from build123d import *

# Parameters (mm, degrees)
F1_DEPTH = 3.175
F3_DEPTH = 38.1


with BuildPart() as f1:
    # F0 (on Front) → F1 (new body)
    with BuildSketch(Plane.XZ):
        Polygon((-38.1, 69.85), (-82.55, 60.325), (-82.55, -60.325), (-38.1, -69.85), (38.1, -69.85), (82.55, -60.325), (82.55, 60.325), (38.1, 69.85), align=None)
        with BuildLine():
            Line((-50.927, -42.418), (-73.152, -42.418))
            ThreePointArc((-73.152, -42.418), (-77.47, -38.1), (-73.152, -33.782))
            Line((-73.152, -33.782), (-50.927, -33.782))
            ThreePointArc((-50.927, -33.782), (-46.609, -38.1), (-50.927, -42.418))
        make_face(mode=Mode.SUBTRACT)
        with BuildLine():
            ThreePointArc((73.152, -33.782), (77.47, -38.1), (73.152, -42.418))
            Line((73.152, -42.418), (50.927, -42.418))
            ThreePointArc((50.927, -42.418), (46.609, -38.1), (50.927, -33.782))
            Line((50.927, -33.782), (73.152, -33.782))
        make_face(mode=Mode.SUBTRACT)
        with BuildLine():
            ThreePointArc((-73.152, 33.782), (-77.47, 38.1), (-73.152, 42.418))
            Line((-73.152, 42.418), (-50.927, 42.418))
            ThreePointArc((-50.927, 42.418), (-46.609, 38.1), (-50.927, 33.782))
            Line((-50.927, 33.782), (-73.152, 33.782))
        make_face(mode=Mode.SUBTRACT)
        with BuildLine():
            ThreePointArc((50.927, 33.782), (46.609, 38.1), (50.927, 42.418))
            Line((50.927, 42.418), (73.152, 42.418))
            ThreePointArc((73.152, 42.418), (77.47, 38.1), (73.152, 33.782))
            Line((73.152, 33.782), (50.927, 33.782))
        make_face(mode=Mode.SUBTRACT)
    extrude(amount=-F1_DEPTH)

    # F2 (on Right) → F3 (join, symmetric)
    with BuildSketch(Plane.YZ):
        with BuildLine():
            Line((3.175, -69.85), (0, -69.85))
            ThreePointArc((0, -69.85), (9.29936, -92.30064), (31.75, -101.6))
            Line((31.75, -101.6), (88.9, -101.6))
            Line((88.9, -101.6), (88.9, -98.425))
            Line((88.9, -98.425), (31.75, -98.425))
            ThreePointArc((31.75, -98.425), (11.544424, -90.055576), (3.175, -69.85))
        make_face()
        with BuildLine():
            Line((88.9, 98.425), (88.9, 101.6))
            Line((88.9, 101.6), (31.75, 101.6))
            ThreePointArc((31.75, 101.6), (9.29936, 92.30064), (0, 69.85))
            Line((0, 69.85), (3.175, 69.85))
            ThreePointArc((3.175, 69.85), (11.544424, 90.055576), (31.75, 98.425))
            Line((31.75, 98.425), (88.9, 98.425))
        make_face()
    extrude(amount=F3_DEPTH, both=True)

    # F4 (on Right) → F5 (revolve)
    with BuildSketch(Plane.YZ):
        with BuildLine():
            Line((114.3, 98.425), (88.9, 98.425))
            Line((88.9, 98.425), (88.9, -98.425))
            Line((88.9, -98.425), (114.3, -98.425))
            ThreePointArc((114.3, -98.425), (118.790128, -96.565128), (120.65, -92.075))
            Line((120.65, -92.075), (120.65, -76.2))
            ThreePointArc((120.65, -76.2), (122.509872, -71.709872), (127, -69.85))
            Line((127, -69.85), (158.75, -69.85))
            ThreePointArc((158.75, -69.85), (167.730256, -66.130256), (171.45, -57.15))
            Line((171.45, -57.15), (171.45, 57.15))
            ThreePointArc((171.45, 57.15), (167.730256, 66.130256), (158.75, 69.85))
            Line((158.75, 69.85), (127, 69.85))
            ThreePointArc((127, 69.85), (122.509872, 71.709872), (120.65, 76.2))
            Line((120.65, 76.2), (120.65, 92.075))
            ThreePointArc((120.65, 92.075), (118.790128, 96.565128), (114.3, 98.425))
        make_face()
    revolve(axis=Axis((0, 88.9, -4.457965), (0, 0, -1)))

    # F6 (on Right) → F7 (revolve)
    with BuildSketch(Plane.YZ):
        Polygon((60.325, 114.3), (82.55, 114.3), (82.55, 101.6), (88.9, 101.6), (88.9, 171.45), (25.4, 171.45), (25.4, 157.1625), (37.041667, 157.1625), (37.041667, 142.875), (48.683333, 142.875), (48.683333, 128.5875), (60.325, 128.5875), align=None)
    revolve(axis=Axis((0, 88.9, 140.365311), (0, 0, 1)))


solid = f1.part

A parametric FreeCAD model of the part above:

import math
import FreeCAD as App
import Part
import Sketcher
Q = App.Units.Quantity


def add_polygon(sketch, points):
    """Adds a closed chain of lines whose ends are joined by coincident constraints."""
    first, n = sketch.GeometryCount, len(points)
    for a, b in zip(points, points[1:] + points[:1]):
        sketch.addGeometry(Part.LineSegment(App.Vector(*a, 0), App.Vector(*b, 0)), False)
    for i in range(n):
        sketch.addConstraint(Sketcher.Constraint("Coincident", first + i, 2, first + (i + 1) % n, 1))

doc = App.newDocument("Part")
body = doc.addObject("PartDesign::Body", "Body")

sketch1 = body.newObject("Sketcher::SketchObject", "Sketch")
sketch1.AttachmentSupport = (doc.getObject("XZ_Plane"), [""])
sketch1.MapMode = "FlatFace"
add_polygon(sketch1, [(-38.1, 69.8), (-82.5, 60.3), (-82.5, -60.3), (-38.1, -69.8), (38.1, -69.8), (82.5, -60.3), (82.5, 60.3), (38.1, 69.8)])
sketch1.addGeometry(Part.ArcOfCircle(Part.Circle(App.Vector(-50.9, -38.1, 0), App.Vector(0, 0, 1), 4.3), math.radians(-90), math.radians(90)), False)
sketch1.addGeometry(Part.LineSegment(App.Vector(-50.9, -42.4, 0), App.Vector(-73.2, -42.4, 0)), False)
sketch1.addGeometry(Part.ArcOfCircle(Part.Circle(App.Vector(-73.2, -38.1, 0), App.Vector(0, 0, 1), 4.3), math.radians(90), math.radians(270)), False)
sketch1.addGeometry(Part.LineSegment(App.Vector(-73.2, -33.8, 0), App.Vector(-50.9, -33.8, 0)), False)
sketch1.addGeometry(Part.LineSegment(App.Vector(50.9, -33.8, 0), App.Vector(73.2, -33.8, 0)), False)
sketch1.addGeometry(Part.ArcOfCircle(Part.Circle(App.Vector(73.2, -38.1, 0), App.Vector(0, 0, 1), 4.3), math.radians(-90), math.radians(90)), False)
sketch1.addGeometry(Part.LineSegment(App.Vector(73.2, -42.4, 0), App.Vector(50.9, -42.4, 0)), False)
sketch1.addGeometry(Part.ArcOfCircle(Part.Circle(App.Vector(50.9, -38.1, 0), App.Vector(0, 0, 1), 4.3), math.radians(90), math.radians(270)), False)
sketch1.addGeometry(Part.LineSegment(App.Vector(-50.9, 33.8, 0), App.Vector(-73.2, 33.8, 0)), False)
sketch1.addGeometry(Part.ArcOfCircle(Part.Circle(App.Vector(-73.2, 38.1, 0), App.Vector(0, 0, 1), 4.3), math.radians(90), math.radians(270)), False)
sketch1.addGeometry(Part.LineSegment(App.Vector(-73.2, 42.4, 0), App.Vector(-50.9, 42.4, 0)), False)
sketch1.addGeometry(Part.ArcOfCircle(Part.Circle(App.Vector(-50.9, 38.1, 0), App.Vector(0, 0, 1), 4.3), math.radians(-90), math.radians(90)), False)
sketch1.addGeometry(Part.LineSegment(App.Vector(73.2, 33.8, 0), App.Vector(50.9, 33.8, 0)), False)
sketch1.addGeometry(Part.ArcOfCircle(Part.Circle(App.Vector(50.9, 38.1, 0), App.Vector(0, 0, 1), 4.3), math.radians(90), math.radians(270)), False)
sketch1.addGeometry(Part.LineSegment(App.Vector(50.9, 42.4, 0), App.Vector(73.2, 42.4, 0)), False)
sketch1.addGeometry(Part.ArcOfCircle(Part.Circle(App.Vector(73.2, 38.1, 0), App.Vector(0, 0, 1), 4.3), math.radians(-90), math.radians(90)), False)
sketch1.addConstraint([
    Sketcher.Constraint("Tangent", 8, 1, 9, 1),
    Sketcher.Constraint("Tangent", 9, 2, 10, 2),
    Sketcher.Constraint("Tangent", 10, 1, 11, 1),
    Sketcher.Constraint("Tangent", 11, 2, 8, 2),
    Sketcher.Constraint("Tangent", 12, 2, 13, 2),
    Sketcher.Constraint("Tangent", 13, 1, 14, 1),
    Sketcher.Constraint("Tangent", 14, 2, 15, 2),
    Sketcher.Constraint("Tangent", 15, 1, 12, 1),
    Sketcher.Constraint("Tangent", 16, 2, 17, 2),
    Sketcher.Constraint("Tangent", 17, 1, 18, 1),
    Sketcher.Constraint("Tangent", 18, 2, 19, 2),
    Sketcher.Constraint("Tangent", 19, 1, 16, 1),
    Sketcher.Constraint("Tangent", 20, 2, 21, 2),
    Sketcher.Constraint("Tangent", 21, 1, 22, 1),
    Sketcher.Constraint("Tangent", 22, 2, 23, 2),
    Sketcher.Constraint("Tangent", 23, 1, 20, 1),
    Sketcher.Constraint("Vertical", 1),
    Sketcher.Constraint("Horizontal", 3),
    Sketcher.Constraint("Vertical", 5),
    Sketcher.Constraint("Horizontal", 7),
    Sketcher.Constraint("Horizontal", 9),
    Sketcher.Constraint("Horizontal", 11),
    Sketcher.Constraint("Horizontal", 12),
    Sketcher.Constraint("Horizontal", 14),
    Sketcher.Constraint("Horizontal", 16),
    Sketcher.Constraint("Horizontal", 18),
    Sketcher.Constraint("Horizontal", 20),
    Sketcher.Constraint("Horizontal", 22),
    Sketcher.Constraint("Equal", 10, 13),
    Sketcher.Constraint("Equal", 15, 17),
    Sketcher.Constraint("Equal", 19, 21),
    Sketcher.Constraint("Symmetric", 13, 3, 17, 3, -1, 1),
    Sketcher.Constraint("Symmetric", 8, 3, 21, 3, -1, 1),
    Sketcher.Constraint("Symmetric", 0, 2, 4, 2, -1, 1),
    Sketcher.Constraint("Symmetric", 2, 2, 6, 2, -1, 1),
    Sketcher.Constraint("Symmetric", 10, 3, 13, 3, -2),
    Sketcher.Constraint("Parallel", 0, 4),
    Sketcher.Constraint("Parallel", 2, 6),
    Sketcher.Constraint("Horizontal", 1, 2, 4, 2),
    Sketcher.Constraint("Vertical", 8, 3, 19, 3),
    Sketcher.Constraint("Vertical", 15, 3, 21, 3),
    Sketcher.Constraint("Vertical", 13, 3, 23, 3),
    Sketcher.Constraint("Vertical", 3, 2, 6, 2),
    Sketcher.Constraint("DistanceX", 3, 1, 3, 2, Q("3 in")),
    Sketcher.Constraint("Radius", 8, Q("0.17 in")),
    Sketcher.Constraint("DistanceY", 10, 3, 17, 3, Q("3 in")),
    Sketcher.Constraint("DistanceY", 1, 2, 1, 1, Q("4.75 in")),
    Sketcher.Constraint("DistanceX", 9, 2, 9, 1, Q("0.875 in")),
    Sketcher.Constraint("DistanceX", 10, 3, -1, 1, Q("2.88 in")),
    Sketcher.Constraint("DistanceX", 0, 2, -1, 1, Q("3.25 in")),
    Sketcher.Constraint("DistanceY", 2, 2, -1, 1, Q("2.75 in")),
])
pad1 = body.newObject("PartDesign::Pad", "Pad")
pad1.Profile = sketch1
pad1.Length = Q("0.125 in")
pad1.Reversed = True

sketch2 = body.newObject("Sketcher::SketchObject", "Sketch001")
sketch2.AttachmentSupport = (doc.getObject("YZ_Plane"), [""])
sketch2.MapMode = "FlatFace"
sketch2.addGeometry([
    Part.LineSegment(App.Vector(3.2, -69.8, 0), App.Vector(0, -69.8, 0)),
    Part.ArcOfCircle(Part.Circle(App.Vector(31.8, -69.8, 0), App.Vector(0, 0, 1), 31.8), math.radians(-180), math.radians(-90)),
    Part.LineSegment(App.Vector(31.8, -101.6, 0), App.Vector(88.9, -101.6, 0)),
    Part.LineSegment(App.Vector(88.9, -101.6, 0), App.Vector(88.9, -98.4, 0)),
    Part.LineSegment(App.Vector(88.9, -98.4, 0), App.Vector(31.8, -98.4, 0)),
    Part.ArcOfCircle(Part.Circle(App.Vector(31.8, -69.8, 0), App.Vector(0, 0, 1), 28.6), math.radians(-180), math.radians(-90)),
    Part.LineSegment(App.Vector(88.9, 98.4, 0), App.Vector(88.9, 101.6, 0)),
    Part.LineSegment(App.Vector(88.9, 101.6, 0), App.Vector(31.8, 101.6, 0)),
    Part.ArcOfCircle(Part.Circle(App.Vector(31.8, 69.8, 0), App.Vector(0, 0, 1), 31.8), math.radians(90), math.radians(180)),
    Part.LineSegment(App.Vector(0, 69.8, 0), App.Vector(3.2, 69.8, 0)),
    Part.ArcOfCircle(Part.Circle(App.Vector(31.8, 69.8, 0), App.Vector(0, 0, 1), 28.6), math.radians(90), math.radians(180)),
    Part.LineSegment(App.Vector(31.8, 98.4, 0), App.Vector(88.9, 98.4, 0)),
], False)
sketch2.addConstraint([
    Sketcher.Constraint("Coincident", 0, 2, 1, 1),
    Sketcher.Constraint("Tangent", 1, 2, 2, 1),
    Sketcher.Constraint("Coincident", 2, 2, 3, 1),
    Sketcher.Constraint("Coincident", 3, 2, 4, 1),
    Sketcher.Constraint("Tangent", 4, 2, 5, 2),
    Sketcher.Constraint("Coincident", 5, 1, 0, 1),
    Sketcher.Constraint("Coincident", 6, 2, 7, 1),
    Sketcher.Constraint("Tangent", 7, 2, 8, 1),
    Sketcher.Constraint("Coincident", 8, 2, 9, 1),
    Sketcher.Constraint("Coincident", 9, 2, 10, 2),
    Sketcher.Constraint("Tangent", 10, 1, 11, 1),
    Sketcher.Constraint("Coincident", 11, 2, 6, 1),
    Sketcher.Constraint("Horizontal", 0),
    Sketcher.Constraint("Horizontal", 2),
    Sketcher.Constraint("Vertical", 3),
    Sketcher.Constraint("Horizontal", 4),
    Sketcher.Constraint("Vertical", 6),
    Sketcher.Constraint("Horizontal", 7),
    Sketcher.Constraint("Horizontal", 9),
    Sketcher.Constraint("Horizontal", 11),
    Sketcher.Constraint("Coincident", 5, 3, 1, 3),
    Sketcher.Constraint("Coincident", 10, 3, 8, 3),
    Sketcher.Constraint("Equal", 1, 8),
    Sketcher.Constraint("Equal", 5, 10),
    Sketcher.Constraint("Symmetric", 0, 2, 8, 2, -1, 1),
    Sketcher.Constraint("Symmetric", 1, 3, 8, 3, -1),
    Sketcher.Constraint("Horizontal", 5, 3, 0, 2),
    Sketcher.Constraint("Vertical", 3, 2, 6, 2),
    Sketcher.Constraint("Radius", 1, Q("1.25 in")),
    Sketcher.Constraint("DistanceY", 1, 2, -1, 1, Q("4 in")),
    Sketcher.Constraint("Radius", 5, Q("1.125 in")),
    Sketcher.Constraint("DistanceX", 2, 1, 2, 2, Q("2.25 in")),
])
pad2 = body.newObject("PartDesign::Pad", "Pad001")
pad2.Profile = sketch2
pad2.Length = Q("3 in")
pad2.Midplane = True

sketch3 = body.newObject("Sketcher::SketchObject", "Sketch002")
sketch3.AttachmentSupport = (doc.getObject("YZ_Plane"), [""])
sketch3.MapMode = "FlatFace"
sketch3.addGeometry([
    Part.LineSegment(App.Vector(114, 98, 0), App.Vector(89, 98, 0)),
    Part.LineSegment(App.Vector(89, 98, 0), App.Vector(89, -98, 0)),
    Part.LineSegment(App.Vector(89, -98, 0), App.Vector(114, -98, 0)),
    Part.ArcOfCircle(Part.Circle(App.Vector(114, -92, 0), App.Vector(0, 0, 1), 6), math.radians(-90), math.radians(0)),
    Part.LineSegment(App.Vector(121, -92, 0), App.Vector(121, -76, 0)),
    Part.ArcOfCircle(Part.Circle(App.Vector(127, -76, 0), App.Vector(0, 0, 1), 6), math.radians(90), math.radians(180)),
    Part.LineSegment(App.Vector(127, -70, 0), App.Vector(159, -70, 0)),
    Part.ArcOfCircle(Part.Circle(App.Vector(159, -57, 0), App.Vector(0, 0, 1), 13), math.radians(-90), math.radians(0)),
    Part.LineSegment(App.Vector(171, -57, 0), App.Vector(171, 57, 0)),
    Part.ArcOfCircle(Part.Circle(App.Vector(159, 57, 0), App.Vector(0, 0, 1), 13), math.radians(0), math.radians(90)),
    Part.LineSegment(App.Vector(159, 70, 0), App.Vector(127, 70, 0)),
    Part.ArcOfCircle(Part.Circle(App.Vector(127, 76, 0), App.Vector(0, 0, 1), 6), math.radians(-180), math.radians(-90)),
    Part.LineSegment(App.Vector(121, 76, 0), App.Vector(121, 92, 0)),
    Part.ArcOfCircle(Part.Circle(App.Vector(114, 92, 0), App.Vector(0, 0, 1), 6), math.radians(0), math.radians(90)),
], False)
sketch3.addGeometry(Part.LineSegment(App.Vector(89, 98, 0), App.Vector(89, -98, 0)), True)
sketch3.addConstraint([
    Sketcher.Constraint("Coincident", 0, 2, 1, 1),
    Sketcher.Constraint("Coincident", 1, 2, 2, 1),
    Sketcher.Constraint("Tangent", 2, 2, 3, 1),
    Sketcher.Constraint("Tangent", 3, 2, 4, 1),
    Sketcher.Constraint("Tangent", 4, 2, 5, 2),
    Sketcher.Constraint("Tangent", 5, 1, 6, 1),
    Sketcher.Constraint("Tangent", 6, 2, 7, 1),
    Sketcher.Constraint("Tangent", 7, 2, 8, 1),
    Sketcher.Constraint("Tangent", 8, 2, 9, 1),
    Sketcher.Constraint("Tangent", 9, 2, 10, 1),
    Sketcher.Constraint("Tangent", 10, 2, 11, 2),
    Sketcher.Constraint("Tangent", 11, 1, 12, 1),
    Sketcher.Constraint("Tangent", 12, 2, 13, 1),
    Sketcher.Constraint("Tangent", 13, 2, 0, 1),
    Sketcher.Constraint("Horizontal", 0),
    Sketcher.Constraint("Vertical", 1),
    Sketcher.Constraint("Horizontal", 2),
    Sketcher.Constraint("Vertical", 4),
    Sketcher.Constraint("Horizontal", 6),
    Sketcher.Constraint("Vertical", 8),
    Sketcher.Constraint("Horizontal", 10),
    Sketcher.Constraint("Vertical", 12),
    Sketcher.Constraint("Vertical", 14),
    Sketcher.Constraint("Coincident", 14, 1, 0, 2),
    Sketcher.Constraint("Equal", 3, 5),
    Sketcher.Constraint("Equal", 7, 9),
    Sketcher.Constraint("Equal", 5, 11),
    Sketcher.Constraint("Equal", 11, 13),
    Sketcher.Constraint("Symmetric", 5, 3, 11, 3, -1),
    Sketcher.Constraint("Horizontal", 2, 2, 14, 2),
    Sketcher.Constraint("Equal", 4, 12),
    Sketcher.Constraint("Radius", 7, Q("0.5 in")),
    Sketcher.Constraint("DistanceX", 0, 2, 0, 1, Q("1 in")),
    Sketcher.Constraint("Radius", 3, Q("0.25 in")),
    Sketcher.Constraint("DistanceY", 8, 1, 8, 2, Q("4.5 in")),
    Sketcher.Constraint("DistanceX", -1, 1, 5, 3, Q("5 in")),
    Sketcher.Constraint("DistanceX", 4, 2, 7, 2, Q("2 in")),
    Sketcher.Constraint("DistanceY", 1, 2, 1, 1, Q("7.75 in")),
])
revolution = body.newObject("PartDesign::Revolution", "Revolution")
revolution.Profile = sketch3
revolution.ReferenceAxis = (sketch3, ["Axis0"])
revolution.Angle = 360

sketch4 = body.newObject("Sketcher::SketchObject", "Sketch003")
sketch4.AttachmentSupport = (doc.getObject("YZ_Plane"), [""])
sketch4.MapMode = "FlatFace"
add_polygon(sketch4, [(60, 114), (83, 114), (83, 102), (89, 102), (89, 171), (25, 171), (25, 157), (37, 157), (37, 143), (49, 143), (49, 129), (60, 129)])
sketch4.addGeometry(Part.LineSegment(App.Vector(89, 102, 0), App.Vector(89, 171, 0)), True)
sketch4.addConstraint([
    Sketcher.Constraint("Horizontal", 0),
    Sketcher.Constraint("Vertical", 1),
    Sketcher.Constraint("Horizontal", 2),
    Sketcher.Constraint("Vertical", 3),
    Sketcher.Constraint("Horizontal", 4),
    Sketcher.Constraint("Vertical", 5),
    Sketcher.Constraint("Horizontal", 6),
    Sketcher.Constraint("Vertical", 7),
    Sketcher.Constraint("Horizontal", 8),
    Sketcher.Constraint("Vertical", 9),
    Sketcher.Constraint("Horizontal", 10),
    Sketcher.Constraint("Vertical", 11),
    Sketcher.Constraint("Vertical", 12),
    Sketcher.Constraint("Coincident", 12, 1, 2, 2),
    Sketcher.Constraint("Horizontal", 4, 2, 12, 2),
    Sketcher.Constraint("Equal", 6, 8),
    Sketcher.Constraint("Equal", 8, 10),
    Sketcher.Constraint("Equal", 5, 7),
    Sketcher.Constraint("Equal", 7, 9),
    Sketcher.Constraint("Equal", 9, 11),
    Sketcher.Constraint("DistanceX", 4, 2, 4, 1, Q("2.5 in")),
    Sketcher.Constraint("DistanceY", 1, 2, 1, 1, Q("0.5 in")),
    Sketcher.Constraint("DistanceY", -1, 1, 1, 2, Q("4 in")),
    Sketcher.Constraint("DistanceX", -1, 1, 4, 2, Q("1 in")),
    Sketcher.Constraint("DistanceX", 2, 1, 2, 2, Q("0.25 in")),
    Sketcher.Constraint("DistanceY", 3, 1, 3, 2, Q("2.75 in")),
    Sketcher.Constraint("DistanceX", 0, 1, 0, 2, Q("0.875 in")),
])
revolution2 = body.newObject("PartDesign::Revolution", "Revolution001")
revolution2.Profile = sketch4
revolution2.ReferenceAxis = (sketch4, ["Axis0"])
revolution2.Angle = 360

doc.recompute()
